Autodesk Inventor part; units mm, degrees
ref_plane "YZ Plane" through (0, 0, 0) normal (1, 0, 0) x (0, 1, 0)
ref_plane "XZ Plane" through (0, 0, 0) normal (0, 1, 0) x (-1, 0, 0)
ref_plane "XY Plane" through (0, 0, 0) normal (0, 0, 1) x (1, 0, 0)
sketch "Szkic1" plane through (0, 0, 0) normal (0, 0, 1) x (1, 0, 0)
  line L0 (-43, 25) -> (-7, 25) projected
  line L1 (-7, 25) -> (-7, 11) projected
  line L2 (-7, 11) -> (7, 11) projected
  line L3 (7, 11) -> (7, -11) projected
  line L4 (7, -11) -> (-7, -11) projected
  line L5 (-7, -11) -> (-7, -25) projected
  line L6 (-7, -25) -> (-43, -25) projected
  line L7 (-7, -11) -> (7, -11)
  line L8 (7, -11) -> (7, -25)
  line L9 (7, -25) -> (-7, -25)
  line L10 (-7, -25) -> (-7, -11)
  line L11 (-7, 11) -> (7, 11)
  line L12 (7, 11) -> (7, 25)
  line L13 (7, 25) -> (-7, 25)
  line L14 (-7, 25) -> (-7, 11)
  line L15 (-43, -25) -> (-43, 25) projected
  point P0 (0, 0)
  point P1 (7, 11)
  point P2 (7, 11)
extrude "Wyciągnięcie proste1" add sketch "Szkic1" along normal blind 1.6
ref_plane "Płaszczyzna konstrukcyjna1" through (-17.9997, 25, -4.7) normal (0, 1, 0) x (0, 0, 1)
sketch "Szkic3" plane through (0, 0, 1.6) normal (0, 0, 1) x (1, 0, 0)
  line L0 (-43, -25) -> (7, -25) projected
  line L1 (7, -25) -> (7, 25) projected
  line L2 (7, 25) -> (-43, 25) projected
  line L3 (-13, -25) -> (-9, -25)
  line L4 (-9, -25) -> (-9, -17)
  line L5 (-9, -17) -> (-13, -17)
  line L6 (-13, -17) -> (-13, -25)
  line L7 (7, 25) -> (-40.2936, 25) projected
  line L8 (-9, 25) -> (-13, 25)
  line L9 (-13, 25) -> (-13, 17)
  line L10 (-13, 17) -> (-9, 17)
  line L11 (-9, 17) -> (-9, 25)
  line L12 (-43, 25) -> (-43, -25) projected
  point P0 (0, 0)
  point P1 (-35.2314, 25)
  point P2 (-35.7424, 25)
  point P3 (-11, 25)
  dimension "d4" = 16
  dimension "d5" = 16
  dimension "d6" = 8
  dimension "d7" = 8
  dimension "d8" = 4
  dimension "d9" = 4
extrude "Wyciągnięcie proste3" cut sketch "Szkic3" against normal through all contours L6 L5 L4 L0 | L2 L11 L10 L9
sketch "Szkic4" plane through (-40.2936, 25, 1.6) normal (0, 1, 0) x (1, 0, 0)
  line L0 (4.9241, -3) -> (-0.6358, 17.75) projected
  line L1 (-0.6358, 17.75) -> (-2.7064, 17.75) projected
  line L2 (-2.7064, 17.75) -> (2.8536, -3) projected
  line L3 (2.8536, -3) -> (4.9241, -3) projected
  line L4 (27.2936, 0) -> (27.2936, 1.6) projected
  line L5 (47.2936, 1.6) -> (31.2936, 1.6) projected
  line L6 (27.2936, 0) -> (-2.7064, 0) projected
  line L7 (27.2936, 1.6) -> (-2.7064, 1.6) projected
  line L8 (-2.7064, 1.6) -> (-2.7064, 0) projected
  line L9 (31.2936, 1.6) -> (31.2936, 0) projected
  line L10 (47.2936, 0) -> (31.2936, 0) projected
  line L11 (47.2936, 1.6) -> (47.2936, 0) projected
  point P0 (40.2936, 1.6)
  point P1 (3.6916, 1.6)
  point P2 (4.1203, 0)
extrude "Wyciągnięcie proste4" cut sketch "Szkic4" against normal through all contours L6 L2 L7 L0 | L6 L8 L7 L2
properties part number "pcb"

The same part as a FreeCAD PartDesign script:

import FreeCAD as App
import Part
import Sketcher
Q = App.Units.Quantity

doc = App.newDocument("Part")
body = doc.addObject("PartDesign::Body", "Body")

sketch1 = body.newObject("Sketcher::SketchObject", "Sketch")
sketch1.AttachmentSupport = (doc.getObject("XY_Plane"), [""])
sketch1.MapMode = "FlatFace"
sketch1.addGeometry([
    Part.LineSegment(App.Vector(-43, 25, 0), App.Vector(-43, -25, 0)),
    Part.LineSegment(App.Vector(-43, -25, 0), App.Vector(7, -25, 0)),
    Part.LineSegment(App.Vector(7, -25, 0), App.Vector(7, 25, 0)),
    Part.LineSegment(App.Vector(7, 25, 0), App.Vector(-43, 25, 0)),
], False)
sketch1.addConstraint([
    Sketcher.Constraint("Coincident", 0, 2, 1, 1),
    Sketcher.Constraint("Coincident", 1, 2, 2, 1),
    Sketcher.Constraint("Coincident", 2, 2, 3, 1),
    Sketcher.Constraint("Coincident", 3, 2, 0, 1),
    Sketcher.Constraint("Vertical", 0),
    Sketcher.Constraint("Horizontal", 1),
    Sketcher.Constraint("Vertical", 2),
    Sketcher.Constraint("Horizontal", 3),
    Sketcher.Constraint("Equal", 3, 0),
    Sketcher.Constraint("DistanceX", 1, 1, 1, 2, 50.0),
    Sketcher.Constraint("DistanceX", 0, 2, -1, 1, 43.0),
    Sketcher.Constraint("DistanceY", 0, 2, -1, 1, 25.0),
])
pad1 = body.newObject("PartDesign::Pad", "Pad")
pad1.Profile = sketch1
pad1.Length = 1.6

sketch2 = body.newObject("Sketcher::SketchObject", "Sketch001")
sketch2.AttachmentSupport = (doc.getObject("XY_Plane"), [""])
sketch2.MapMode = "FlatFace"
sketch2.AttachmentOffset = App.Placement(App.Vector(0, 0, 1.6), App.Rotation())
sketch2.addGeometry([
    Part.LineSegment(App.Vector(-13, -17, 0), App.Vector(-13, -25, 0)),
    Part.LineSegment(App.Vector(-13, -25, 0), App.Vector(-9, -25, 0)),
    Part.LineSegment(App.Vector(-9, -25, 0), App.Vector(-9, -17, 0)),
    Part.LineSegment(App.Vector(-9, -17, 0), App.Vector(-13, -17, 0)),
    Part.LineSegment(App.Vector(-9, 25, 0), App.Vector(-13, 25, 0)),
    Part.LineSegment(App.Vector(-13, 25, 0), App.Vector(-13, 17, 0)),
    Part.LineSegment(App.Vector(-13, 17, 0), App.Vector(-9, 17, 0)),
    Part.LineSegment(App.Vector(-9, 17, 0), App.Vector(-9, 25, 0)),
], False)
sketch2.addConstraint([
    Sketcher.Constraint("Coincident", 0, 2, 1, 1),
    Sketcher.Constraint("Coincident", 1, 2, 2, 1),
    Sketcher.Constraint("Coincident", 2, 2, 3, 1),
    Sketcher.Constraint("Coincident", 3, 2, 0, 1),
    Sketcher.Constraint("Coincident", 4, 2, 5, 1),
    Sketcher.Constraint("Coincident", 5, 2, 6, 1),
    Sketcher.Constraint("Coincident", 6, 2, 7, 1),
    Sketcher.Constraint("Coincident", 7, 2, 4, 1),
    Sketcher.Constraint("Vertical", 0),
    Sketcher.Constraint("Horizontal", 1),
    Sketcher.Constraint("Vertical", 2),
    Sketcher.Constraint("Horizontal", 3),
    Sketcher.Constraint("Horizontal", 4),
    Sketcher.Constraint("Vertical", 5),
    Sketcher.Constraint("Horizontal", 6),
    Sketcher.Constraint("Vertical", 7),
    Sketcher.Constraint("Symmetric", 0, 2, 4, 2, -1),
    Sketcher.Constraint("Symmetric", 2, 2, 6, 2, -1),
    Sketcher.Constraint("DistanceX", 1, 1, 1, 2, 4.0),
    Sketcher.Constraint("DistanceY", 0, 2, 0, 1, 8.0),
    Sketcher.Constraint("DistanceX", 0, 2, -1, 1, 13.0),
    Sketcher.Constraint("DistanceY", 0, 2, -1, 1, 25.0),
])
pocket1 = body.newObject("PartDesign::Pocket", "Pocket")
pocket1.Profile = sketch2
pocket1.Type = "ThroughAll"

sketch3 = body.newObject("Sketcher::SketchObject", "Sketch002")
sketch3.AttachmentSupport = (doc.getObject("XZ_Plane"), [""])
sketch3.MapMode = "FlatFace"
sketch3.AttachmentOffset = App.Placement(App.Vector(0, 0, -25), App.Rotation())
sketch3.addGeometry([
    Part.LineSegment(App.Vector(-36.2, 1.6, 0), App.Vector(-36.6, 0, 0)),
    Part.LineSegment(App.Vector(-36.6, 0, 0), App.Vector(-43, 0, 0)),
    Part.LineSegment(App.Vector(-43, 0, 0), App.Vector(-43, 1.6, 0)),
    Part.LineSegment(App.Vector(-43, 1.6, 0), App.Vector(-36.2, 1.6, 0)),
], False)
sketch3.addConstraint([
    Sketcher.Constraint("Coincident", 0, 2, 1, 1),
    Sketcher.Constraint("Coincident", 1, 2, 2, 1),
    Sketcher.Constraint("Coincident", 2, 2, 3, 1),
    Sketcher.Constraint("Coincident", 3, 2, 0, 1),
    Sketcher.Constraint("Horizontal", 1),
    Sketcher.Constraint("Vertical", 2),
    Sketcher.Constraint("Horizontal", 3),
    Sketcher.Constraint("PointOnObject", 0, 2, -1),
    Sketcher.Constraint("Angle", 0, Q("-105 deg")),
    Sketcher.Constraint("DistanceY", 2, 1, 2, 2, 1.6),
    Sketcher.Constraint("DistanceX", 1, 2, -1, 1, 43.0),
    Sketcher.Constraint("DistanceX", 1, 2, 1, 1, 6.398),
])
pocket2 = body.newObject("PartDesign::Pocket", "Pocket001")
pocket2.Profile = sketch3
pocket2.Type = "ThroughAll"
pocket2.Reversed = True

doc.recompute()
